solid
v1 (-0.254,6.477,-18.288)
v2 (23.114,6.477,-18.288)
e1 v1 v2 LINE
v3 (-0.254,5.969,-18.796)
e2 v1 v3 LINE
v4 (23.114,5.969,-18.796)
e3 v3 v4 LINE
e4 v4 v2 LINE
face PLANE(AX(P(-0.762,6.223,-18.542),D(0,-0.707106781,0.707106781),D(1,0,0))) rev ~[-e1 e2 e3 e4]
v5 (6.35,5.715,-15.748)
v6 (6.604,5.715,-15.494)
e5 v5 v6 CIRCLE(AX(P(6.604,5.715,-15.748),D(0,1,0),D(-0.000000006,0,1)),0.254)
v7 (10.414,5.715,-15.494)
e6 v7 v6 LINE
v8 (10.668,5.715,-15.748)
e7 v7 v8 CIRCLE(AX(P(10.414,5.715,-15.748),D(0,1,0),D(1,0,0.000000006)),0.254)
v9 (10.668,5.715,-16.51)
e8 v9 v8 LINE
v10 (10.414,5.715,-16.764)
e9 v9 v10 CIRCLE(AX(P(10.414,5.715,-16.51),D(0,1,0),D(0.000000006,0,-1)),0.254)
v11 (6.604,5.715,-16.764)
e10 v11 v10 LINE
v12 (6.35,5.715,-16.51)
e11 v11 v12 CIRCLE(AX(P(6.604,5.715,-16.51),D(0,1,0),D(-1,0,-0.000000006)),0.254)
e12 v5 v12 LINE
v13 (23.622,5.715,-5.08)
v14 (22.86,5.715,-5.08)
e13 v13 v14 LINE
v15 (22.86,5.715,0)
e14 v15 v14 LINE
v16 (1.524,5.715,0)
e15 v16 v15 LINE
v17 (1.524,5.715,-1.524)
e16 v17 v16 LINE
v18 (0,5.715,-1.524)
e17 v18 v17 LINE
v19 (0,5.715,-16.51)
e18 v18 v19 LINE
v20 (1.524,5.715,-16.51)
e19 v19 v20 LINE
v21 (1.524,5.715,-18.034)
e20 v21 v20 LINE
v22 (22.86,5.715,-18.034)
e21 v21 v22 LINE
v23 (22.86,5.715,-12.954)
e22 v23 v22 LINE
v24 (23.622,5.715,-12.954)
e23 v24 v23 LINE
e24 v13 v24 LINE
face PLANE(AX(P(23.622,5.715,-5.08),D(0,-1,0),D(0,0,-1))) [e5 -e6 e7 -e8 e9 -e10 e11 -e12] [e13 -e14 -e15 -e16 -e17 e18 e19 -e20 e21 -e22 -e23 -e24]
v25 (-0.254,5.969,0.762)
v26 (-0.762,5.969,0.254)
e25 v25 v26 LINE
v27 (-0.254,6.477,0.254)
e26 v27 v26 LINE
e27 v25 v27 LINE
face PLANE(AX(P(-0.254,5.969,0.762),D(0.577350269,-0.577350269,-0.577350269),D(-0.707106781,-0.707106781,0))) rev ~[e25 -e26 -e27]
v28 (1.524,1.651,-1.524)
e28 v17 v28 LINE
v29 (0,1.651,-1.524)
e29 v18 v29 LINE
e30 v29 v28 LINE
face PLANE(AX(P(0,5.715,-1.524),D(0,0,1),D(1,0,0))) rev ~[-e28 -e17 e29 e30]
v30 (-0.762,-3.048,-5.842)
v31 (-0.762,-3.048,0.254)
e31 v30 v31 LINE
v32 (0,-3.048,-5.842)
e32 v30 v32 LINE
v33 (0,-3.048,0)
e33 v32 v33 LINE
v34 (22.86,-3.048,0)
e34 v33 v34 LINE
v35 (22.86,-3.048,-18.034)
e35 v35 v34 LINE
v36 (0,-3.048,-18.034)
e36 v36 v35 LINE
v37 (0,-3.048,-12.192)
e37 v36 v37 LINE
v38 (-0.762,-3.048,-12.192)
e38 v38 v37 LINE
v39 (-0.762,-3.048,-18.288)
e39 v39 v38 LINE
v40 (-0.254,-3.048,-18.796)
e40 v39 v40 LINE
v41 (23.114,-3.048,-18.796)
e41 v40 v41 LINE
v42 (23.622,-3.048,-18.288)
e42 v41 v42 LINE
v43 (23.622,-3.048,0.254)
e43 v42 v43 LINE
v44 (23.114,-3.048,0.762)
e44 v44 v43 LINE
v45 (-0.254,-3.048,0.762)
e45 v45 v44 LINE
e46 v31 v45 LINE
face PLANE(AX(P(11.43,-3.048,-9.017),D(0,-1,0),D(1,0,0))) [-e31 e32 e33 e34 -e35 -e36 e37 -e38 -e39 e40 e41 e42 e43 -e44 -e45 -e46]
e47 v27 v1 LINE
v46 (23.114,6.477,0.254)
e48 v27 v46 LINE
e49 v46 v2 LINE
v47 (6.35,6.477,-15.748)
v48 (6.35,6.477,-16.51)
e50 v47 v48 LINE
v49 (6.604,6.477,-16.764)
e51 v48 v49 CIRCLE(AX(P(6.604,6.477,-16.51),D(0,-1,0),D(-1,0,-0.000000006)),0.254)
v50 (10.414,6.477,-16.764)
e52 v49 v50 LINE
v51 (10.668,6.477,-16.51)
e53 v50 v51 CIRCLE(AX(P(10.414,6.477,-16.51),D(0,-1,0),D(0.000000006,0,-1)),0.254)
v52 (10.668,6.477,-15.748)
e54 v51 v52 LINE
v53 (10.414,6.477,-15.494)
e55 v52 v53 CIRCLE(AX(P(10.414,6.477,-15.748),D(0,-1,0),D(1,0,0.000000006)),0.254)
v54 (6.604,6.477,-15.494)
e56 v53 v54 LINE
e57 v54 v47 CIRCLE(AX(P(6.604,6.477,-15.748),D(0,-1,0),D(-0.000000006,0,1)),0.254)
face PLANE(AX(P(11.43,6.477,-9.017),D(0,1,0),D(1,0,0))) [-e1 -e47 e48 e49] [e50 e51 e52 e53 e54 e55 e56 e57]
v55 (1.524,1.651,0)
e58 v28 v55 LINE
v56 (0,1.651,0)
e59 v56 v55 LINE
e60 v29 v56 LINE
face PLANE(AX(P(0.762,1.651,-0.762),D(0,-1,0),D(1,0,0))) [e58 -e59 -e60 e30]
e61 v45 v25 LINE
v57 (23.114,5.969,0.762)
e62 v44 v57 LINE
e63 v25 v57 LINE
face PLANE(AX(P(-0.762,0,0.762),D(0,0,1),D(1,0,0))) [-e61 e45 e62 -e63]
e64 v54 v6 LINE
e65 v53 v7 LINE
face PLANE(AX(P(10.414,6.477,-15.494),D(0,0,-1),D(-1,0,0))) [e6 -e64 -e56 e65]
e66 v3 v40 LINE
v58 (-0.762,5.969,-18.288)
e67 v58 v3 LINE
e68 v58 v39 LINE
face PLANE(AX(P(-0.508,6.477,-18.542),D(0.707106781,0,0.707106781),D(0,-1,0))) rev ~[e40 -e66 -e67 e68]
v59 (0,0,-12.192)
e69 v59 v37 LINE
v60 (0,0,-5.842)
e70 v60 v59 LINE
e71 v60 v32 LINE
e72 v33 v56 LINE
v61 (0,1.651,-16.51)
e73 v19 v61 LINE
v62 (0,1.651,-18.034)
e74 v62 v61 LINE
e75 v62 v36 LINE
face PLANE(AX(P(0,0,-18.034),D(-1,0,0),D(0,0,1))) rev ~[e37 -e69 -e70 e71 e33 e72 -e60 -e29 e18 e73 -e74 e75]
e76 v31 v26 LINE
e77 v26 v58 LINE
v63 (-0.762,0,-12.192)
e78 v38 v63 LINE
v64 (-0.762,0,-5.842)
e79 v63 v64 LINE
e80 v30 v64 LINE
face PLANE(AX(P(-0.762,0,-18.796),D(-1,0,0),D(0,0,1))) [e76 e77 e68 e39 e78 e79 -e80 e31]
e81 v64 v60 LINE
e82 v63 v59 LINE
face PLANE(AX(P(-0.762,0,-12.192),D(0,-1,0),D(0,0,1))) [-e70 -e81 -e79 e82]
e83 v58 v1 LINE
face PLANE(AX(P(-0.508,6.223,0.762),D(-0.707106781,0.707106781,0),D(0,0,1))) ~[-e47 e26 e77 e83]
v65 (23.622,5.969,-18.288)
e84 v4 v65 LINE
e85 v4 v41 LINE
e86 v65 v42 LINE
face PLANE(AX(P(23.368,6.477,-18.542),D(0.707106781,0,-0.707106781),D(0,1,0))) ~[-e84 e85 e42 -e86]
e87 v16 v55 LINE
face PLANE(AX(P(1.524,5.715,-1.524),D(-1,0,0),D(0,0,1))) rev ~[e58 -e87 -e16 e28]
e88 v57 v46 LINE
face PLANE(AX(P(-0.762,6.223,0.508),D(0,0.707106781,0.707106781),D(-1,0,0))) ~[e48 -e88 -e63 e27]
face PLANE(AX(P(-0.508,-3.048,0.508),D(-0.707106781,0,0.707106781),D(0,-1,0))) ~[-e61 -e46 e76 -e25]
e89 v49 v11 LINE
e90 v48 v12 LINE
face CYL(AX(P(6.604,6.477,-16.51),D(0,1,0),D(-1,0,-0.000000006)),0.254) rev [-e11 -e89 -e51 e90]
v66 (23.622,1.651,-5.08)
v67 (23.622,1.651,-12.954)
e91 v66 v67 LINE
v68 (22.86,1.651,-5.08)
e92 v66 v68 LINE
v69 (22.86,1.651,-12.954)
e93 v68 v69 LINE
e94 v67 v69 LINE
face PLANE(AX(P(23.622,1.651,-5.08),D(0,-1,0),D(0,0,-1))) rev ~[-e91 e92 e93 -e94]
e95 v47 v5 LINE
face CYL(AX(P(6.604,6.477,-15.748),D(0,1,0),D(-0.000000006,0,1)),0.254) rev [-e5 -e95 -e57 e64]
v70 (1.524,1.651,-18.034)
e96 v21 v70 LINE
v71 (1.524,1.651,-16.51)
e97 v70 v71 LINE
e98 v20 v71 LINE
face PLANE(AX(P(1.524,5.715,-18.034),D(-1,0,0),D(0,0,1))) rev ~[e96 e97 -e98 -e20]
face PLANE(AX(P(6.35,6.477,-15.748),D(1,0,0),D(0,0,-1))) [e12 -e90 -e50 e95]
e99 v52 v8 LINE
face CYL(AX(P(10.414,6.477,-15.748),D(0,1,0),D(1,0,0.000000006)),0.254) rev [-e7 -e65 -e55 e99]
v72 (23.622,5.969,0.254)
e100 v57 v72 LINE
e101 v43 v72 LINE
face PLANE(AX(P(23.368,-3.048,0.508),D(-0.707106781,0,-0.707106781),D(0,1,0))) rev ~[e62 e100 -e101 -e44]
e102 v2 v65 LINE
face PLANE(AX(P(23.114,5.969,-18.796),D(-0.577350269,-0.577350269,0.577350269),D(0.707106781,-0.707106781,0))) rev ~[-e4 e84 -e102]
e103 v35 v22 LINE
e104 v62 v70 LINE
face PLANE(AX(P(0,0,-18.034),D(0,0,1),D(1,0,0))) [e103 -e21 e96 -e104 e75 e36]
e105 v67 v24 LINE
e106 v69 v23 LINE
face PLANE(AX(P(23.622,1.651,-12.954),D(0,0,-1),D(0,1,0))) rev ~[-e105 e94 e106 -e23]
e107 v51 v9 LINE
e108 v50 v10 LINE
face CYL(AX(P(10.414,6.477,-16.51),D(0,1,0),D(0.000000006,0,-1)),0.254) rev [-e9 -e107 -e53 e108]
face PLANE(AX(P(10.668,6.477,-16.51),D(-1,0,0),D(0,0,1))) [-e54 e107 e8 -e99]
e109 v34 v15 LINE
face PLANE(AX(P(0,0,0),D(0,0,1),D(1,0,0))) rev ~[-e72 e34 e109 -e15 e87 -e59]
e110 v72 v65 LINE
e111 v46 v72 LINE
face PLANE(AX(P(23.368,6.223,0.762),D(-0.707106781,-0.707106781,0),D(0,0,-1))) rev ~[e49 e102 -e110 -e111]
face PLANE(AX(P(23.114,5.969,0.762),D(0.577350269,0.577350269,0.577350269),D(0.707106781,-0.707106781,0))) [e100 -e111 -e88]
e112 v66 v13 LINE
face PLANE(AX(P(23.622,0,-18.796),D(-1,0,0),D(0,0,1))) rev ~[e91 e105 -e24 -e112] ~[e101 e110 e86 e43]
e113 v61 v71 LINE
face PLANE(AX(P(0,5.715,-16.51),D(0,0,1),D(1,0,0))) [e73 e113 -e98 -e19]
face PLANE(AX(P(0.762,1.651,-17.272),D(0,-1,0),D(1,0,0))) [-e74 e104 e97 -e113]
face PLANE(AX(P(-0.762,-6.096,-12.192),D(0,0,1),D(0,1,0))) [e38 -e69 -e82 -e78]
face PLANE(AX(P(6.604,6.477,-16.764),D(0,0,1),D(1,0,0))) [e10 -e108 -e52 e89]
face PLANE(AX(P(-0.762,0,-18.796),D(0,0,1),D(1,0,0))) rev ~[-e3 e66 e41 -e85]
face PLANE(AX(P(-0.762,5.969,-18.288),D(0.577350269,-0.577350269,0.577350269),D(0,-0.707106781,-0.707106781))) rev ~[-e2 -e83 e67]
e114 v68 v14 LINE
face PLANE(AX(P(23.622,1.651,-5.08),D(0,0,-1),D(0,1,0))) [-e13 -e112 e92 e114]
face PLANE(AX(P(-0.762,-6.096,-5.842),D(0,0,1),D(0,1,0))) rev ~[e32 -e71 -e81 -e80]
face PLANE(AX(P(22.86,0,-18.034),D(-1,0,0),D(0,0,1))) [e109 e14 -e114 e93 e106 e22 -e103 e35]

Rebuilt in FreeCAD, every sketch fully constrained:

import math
import FreeCAD as App
import Part
import Sketcher

V = App.Vector
Q = App.Units.Quantity


def edges_at(feature, points):
    """Names of the edges that pass closest to the given points."""
    edges = feature.Shape.Edges
    near = lambda p: min(range(len(edges)), key=lambda i: edges[i].distToShape(Part.Vertex(*p))[0])
    return sorted({f"Edge{near(p) + 1}" for p in points})

doc = App.newDocument("Part")
body = doc.addObject("PartDesign::Body", "Body")

# Sketch on XZ plane
sketch1 = body.newObject("Sketcher::SketchObject", "Sketch")
sketch1.AttachmentSupport = (doc.getObject("XZ_Plane"), [""])
sketch1.MapMode = "FlatFace"
sketch1.addGeometry([
    Part.LineSegment(V(-0.762, -18.796, 0), V(-0.762, 0.762, 0)),
    Part.LineSegment(V(-0.762, 0.762, 0), V(23.622, 0.762, 0)),
    Part.LineSegment(V(23.622, 0.762, 0), V(23.622, -18.796, 0)),
    Part.LineSegment(V(23.622, -18.796, 0), V(-0.762, -18.796, 0)),
], False)
sketch1.addConstraint([
    Sketcher.Constraint("Coincident", 0, 2, 1, 1),
    Sketcher.Constraint("Coincident", 1, 2, 2, 1),
    Sketcher.Constraint("Coincident", 2, 2, 3, 1),
    Sketcher.Constraint("Coincident", 3, 2, 0, 1),
    Sketcher.Constraint("Vertical", 0),
    Sketcher.Constraint("Horizontal", 1),
    Sketcher.Constraint("Vertical", 2),
    Sketcher.Constraint("Horizontal", 3),
    Sketcher.Constraint("DistanceX", 1, 1, 1, 2, Q("0.96 in")),
    Sketcher.Constraint("DistanceY", 0, 1, 0, 2, Q("0.77 in")),
    Sketcher.Constraint("DistanceX", 0, 2, -1, 1, Q("0.03 in")),
    Sketcher.Constraint("DistanceY", -1, 1, 0, 2, Q("0.03 in")),
])
pad1 = body.newObject("PartDesign::Pad", "Pad")
pad1.Profile = sketch1
pad1.Length = Q("0.255 in")
pad1.Reversed = True

# Sketch on XZ plane
sketch2 = body.newObject("Sketcher::SketchObject", "Sketch001")
sketch2.AttachmentSupport = (doc.getObject("XZ_Plane"), [""])
sketch2.MapMode = "FlatFace"
sketch2.addGeometry([
    Part.LineSegment(V(0, -18.034, 0), V(0, 0, 0)),
    Part.LineSegment(V(0, 0, 0), V(22.86, 0, 0)),
    Part.LineSegment(V(22.86, 0, 0), V(22.86, -18.034, 0)),
    Part.LineSegment(V(22.86, -18.034, 0), V(0, -18.034, 0)),
], False)
sketch2.addConstraint([
    Sketcher.Constraint("Coincident", 0, 2, 1, 1),
    Sketcher.Constraint("Coincident", 1, 2, 2, 1),
    Sketcher.Constraint("Coincident", 2, 2, 3, 1),
    Sketcher.Constraint("Coincident", 3, 2, 0, 1),
    Sketcher.Constraint("Vertical", 0),
    Sketcher.Constraint("Horizontal", 1),
    Sketcher.Constraint("Vertical", 2),
    Sketcher.Constraint("Horizontal", 3),
    Sketcher.Constraint("Coincident", 0, 2, -1, 1),
    Sketcher.Constraint("DistanceX", 1, 1, 1, 2, Q("0.9 in")),
    Sketcher.Constraint("DistanceY", 0, 1, 0, 2, Q("0.71 in")),
])
pocket1 = body.newObject("PartDesign::Pocket", "Pocket")
pocket1.Profile = sketch2
pocket1.Length = Q("0.225 in")

# Sketch on XZ plane
sketch3 = body.newObject("Sketcher::SketchObject", "Sketch002")
sketch3.AttachmentSupport = (doc.getObject("XZ_Plane"), [""])
sketch3.MapMode = "FlatFace"
sketch3.addGeometry([
    Part.LineSegment(V(-0.762, 0.762, 0), V(-0.762, -18.796, 0)),  # 0
    Part.LineSegment(V(-0.762, -18.796, 0), V(23.622, -18.796, 0)),  # 1
    Part.LineSegment(V(23.622, -18.796, 0), V(23.622, 0.762, 0)),  # 2
    Part.LineSegment(V(23.622, 0.762, 0), V(-0.762, 0.762, 0)),  # 3
    Part.LineSegment(V(22.86, -18.034, 0), V(0, -18.034, 0)),  # 4
    Part.LineSegment(V(0, -18.034, 0), V(0, 0, 0)),  # 5
    Part.LineSegment(V(0, 0, 0), V(22.86, 0, 0)),  # 6
    Part.LineSegment(V(22.86, 0, 0), V(22.86, -18.034, 0)),  # 7
], False)
sketch3.addConstraint([
    Sketcher.Constraint("Coincident", 0, 2, 1, 1),
    Sketcher.Constraint("Coincident", 1, 2, 2, 1),
    Sketcher.Constraint("Coincident", 2, 2, 3, 1),
    Sketcher.Constraint("Coincident", 3, 2, 0, 1),
    Sketcher.Constraint("Coincident", 4, 2, 5, 1),
    Sketcher.Constraint("Coincident", 5, 2, 6, 1),
    Sketcher.Constraint("Coincident", 6, 2, 7, 1),
    Sketcher.Constraint("Coincident", 7, 2, 4, 1),
    Sketcher.Constraint("Vertical", 0),
    Sketcher.Constraint("Horizontal", 1),
    Sketcher.Constraint("Vertical", 2),
    Sketcher.Constraint("Horizontal", 3),
    Sketcher.Constraint("Horizontal", 4),
    Sketcher.Constraint("Vertical", 5),
    Sketcher.Constraint("Horizontal", 6),
    Sketcher.Constraint("Vertical", 7),
    Sketcher.Constraint("Coincident", 5, 2, -1, 1),
    Sketcher.Constraint("DistanceX", 4, 2, 4, 1, Q("0.9 in")),
    Sketcher.Constraint("DistanceX", 1, 1, 1, 2, Q("0.96 in")),
    Sketcher.Constraint("DistanceY", 0, 2, 0, 1, Q("0.77 in")),
    Sketcher.Constraint("DistanceY", 5, 1, 5, 2, Q("0.71 in")),
    Sketcher.Constraint("DistanceX", 0, 2, -1, 1, Q("0.03 in")),
    Sketcher.Constraint("DistanceY", 0, 2, -1, 1, Q("0.74 in")),
])
pad2 = body.newObject("PartDesign::Pad", "Pad001")
pad2.Profile = sketch3
pad2.Length = Q("0.12 in")

# Sketch on YZ plane
sketch4 = body.newObject("Sketcher::SketchObject", "Sketch003")
sketch4.AttachmentSupport = (doc.getObject("YZ_Plane"), [""])
sketch4.MapMode = "FlatFace"
sketch4.AttachmentOffset = App.Placement(V(0, 0, -0.03 * 25.4), App.Rotation())
sketch4.addGeometry([
    Part.LineSegment(V(0, -12.192, 0), V(-6.096, -12.192, 0)),
    Part.LineSegment(V(-6.096, -12.192, 0), V(-6.096, -5.842, 0)),
    Part.LineSegment(V(-6.096, -5.842, 0), V(0, -5.842, 0)),
    Part.LineSegment(V(0, -5.842, 0), V(0, -12.192, 0)),
], False)
sketch4.addConstraint([
    Sketcher.Constraint("Coincident", 0, 2, 1, 1),
    Sketcher.Constraint("Coincident", 1, 2, 2, 1),
    Sketcher.Constraint("Coincident", 2, 2, 3, 1),
    Sketcher.Constraint("Coincident", 3, 2, 0, 1),
    Sketcher.Constraint("Horizontal", 0),
    Sketcher.Constraint("Vertical", 1),
    Sketcher.Constraint("Horizontal", 2),
    Sketcher.Constraint("Vertical", 3),
    Sketcher.Constraint("PointOnObject", 2, 2, -2),
    Sketcher.Constraint("DistanceX", 0, 2, 0, 1, Q("0.24 in")),
    Sketcher.Constraint("DistanceY", 1, 1, 1, 2, Q("0.25 in")),
    Sketcher.Constraint("DistanceY", 0, 2, -1, 1, Q("0.48 in")),
])
pocket2 = body.newObject("PartDesign::Pocket", "Pocket001")
pocket2.Profile = sketch4
pocket2.Type = "UpToFirst"
pocket2.Reversed = True

# Sketch on YZ plane
sketch5 = body.newObject("Sketcher::SketchObject", "Sketch004")
sketch5.AttachmentSupport = (doc.getObject("YZ_Plane"), [""])
sketch5.MapMode = "FlatFace"
sketch5.AttachmentOffset = App.Placement(V(0, 0, 0.93 * 25.4), App.Rotation())
sketch5.addGeometry([
    Part.LineSegment(V(5.715, -5.08, 0), V(1.651, -5.08, 0)),
    Part.LineSegment(V(1.651, -5.08, 0), V(1.651, -12.954, 0)),
    Part.LineSegment(V(1.651, -12.954, 0), V(5.715, -12.954, 0)),
    Part.LineSegment(V(5.715, -12.954, 0), V(5.715, -5.08, 0)),
], False)
sketch5.addConstraint([
    Sketcher.Constraint("Coincident", 0, 2, 1, 1),
    Sketcher.Constraint("Coincident", 1, 2, 2, 1),
    Sketcher.Constraint("Coincident", 2, 2, 3, 1),
    Sketcher.Constraint("Coincident", 3, 2, 0, 1),
    Sketcher.Constraint("Horizontal", 0),
    Sketcher.Constraint("Vertical", 1),
    Sketcher.Constraint("Horizontal", 2),
    Sketcher.Constraint("Vertical", 3),
    Sketcher.Constraint("DistanceX", 0, 2, 0, 1, Q("0.16 in")),
    Sketcher.Constraint("DistanceY", 1, 2, 1, 1, Q("0.31 in")),
    Sketcher.Constraint("DistanceY", 0, 2, -1, 1, Q("0.2 in")),
    Sketcher.Constraint("DistanceX", -1, 1, 0, 2, Q("0.065 in")),
])
pocket3 = body.newObject("PartDesign::Pocket", "Pocket002")
pocket3.Profile = sketch5
pocket3.Type = "UpToFirst"
doc.recompute()

chamfer = body.newObject("PartDesign::Chamfer", "Chamfer")
chamfer.Base = (pocket3, edges_at(pocket3, [
    (23.622, 6.477, -9.017),
    (11.43, 6.477, -18.796),
    (-0.762, 6.477, -9.017),
    (11.43, 6.477, 0.762),
    (-0.762, 1.714, -18.796),
    (23.622, 1.714, -18.796),
    (23.622, 1.714, 0.762),
    (-0.762, 1.714, 0.762),
]))
chamfer.Size = Q("0.02 in")

# Sketch on XZ plane
sketch6 = body.newObject("Sketcher::SketchObject", "Sketch005")
sketch6.AttachmentSupport = (doc.getObject("XZ_Plane"), [""])
sketch6.MapMode = "FlatFace"
sketch6.AttachmentOffset = App.Placement(V(0, 0, -0.255 * 25.4), App.Rotation())
sketch6.addGeometry([
    Part.LineSegment(V(10.414, -16.764, 0), V(6.604, -16.764, 0)),  # 0
    Part.ArcOfCircle(Part.Circle(V(6.604, -16.51, 0), V(0, 0, 1), 0.254), math.radians(-180), math.radians(-90)),  # 1
    Part.LineSegment(V(6.35, -16.51, 0), V(6.35, -15.748, 0)),  # 2
    Part.ArcOfCircle(Part.Circle(V(6.604, -15.748, 0), V(0, 0, 1), 0.254), math.radians(90), math.radians(180)),  # 3
    Part.LineSegment(V(6.604, -15.494, 0), V(10.414, -15.494, 0)),  # 4
    Part.ArcOfCircle(Part.Circle(V(10.414, -15.748, 0), V(0, 0, 1), 0.254), math.radians(0), math.radians(90)),  # 5
    Part.LineSegment(V(10.668, -15.748, 0), V(10.668, -16.51, 0)),  # 6
    Part.ArcOfCircle(Part.Circle(V(10.414, -16.51, 0), V(0, 0, 1), 0.254), math.radians(-90), math.radians(0)),  # 7
], False)
sketch6.addConstraint([
    Sketcher.Constraint("Tangent", 0, 2, 1, 2),
    Sketcher.Constraint("Tangent", 1, 1, 2, 1),
    Sketcher.Constraint("Tangent", 2, 2, 3, 2),
    Sketcher.Constraint("Tangent", 3, 1, 4, 1),
    Sketcher.Constraint("Tangent", 4, 2, 5, 2),
    Sketcher.Constraint("Tangent", 5, 1, 6, 1),
    Sketcher.Constraint("Tangent", 6, 2, 7, 2),
    Sketcher.Constraint("Tangent", 7, 1, 0, 1),
    Sketcher.Constraint("Horizontal", 0),
    Sketcher.Constraint("Vertical", 2),
    Sketcher.Constraint("Horizontal", 4),
    Sketcher.Constraint("Vertical", 6),
    Sketcher.Constraint("Equal", 1, 3),
    Sketcher.Constraint("Equal", 3, 5),
    Sketcher.Constraint("Equal", 5, 7),
    Sketcher.Constraint("Radius", 1, Q("0.01 in")),
    Sketcher.Constraint("DistanceX", 0, 2, 0, 1, Q("0.15 in")),
    Sketcher.Constraint("DistanceY", 2, 1, 2, 2, Q("0.03 in")),
    Sketcher.Constraint("DistanceX", -1, 1, 1, 3, Q("0.26 in")),
    Sketcher.Constraint("DistanceY", 1, 3, -1, 1, Q("0.65 in")),
])
pocket4 = body.newObject("PartDesign::Pocket", "Pocket003")
pocket4.Profile = sketch6
pocket4.Type = "UpToFirst"
pocket4.Reversed = True

# Sketch on XZ plane
sketch7 = body.newObject("Sketcher::SketchObject", "Sketch006")
sketch7.AttachmentSupport = (doc.getObject("XZ_Plane"), [""])
sketch7.MapMode = "FlatFace"
sketch7.AttachmentOffset = App.Placement(V(0, 0, -0.225 * 25.4), App.Rotation())
sketch7.addGeometry([
    Part.LineSegment(V(0, -16.51, 0), V(0, -18.034, 0)),  # 0
    Part.LineSegment(V(0, -18.034, 0), V(1.524, -18.034, 0)),  # 1
    Part.LineSegment(V(1.524, -18.034, 0), V(1.524, -16.51, 0)),  # 2
    Part.LineSegment(V(1.524, -16.51, 0), V(0, -16.51, 0)),  # 3
    Part.LineSegment(V(0, 0, 0), V(0, -1.524, 0)),  # 4
    Part.LineSegment(V(0, -1.524, 0), V(1.524, -1.524, 0)),  # 5
    Part.LineSegment(V(1.524, -1.524, 0), V(1.524, 0, 0)),  # 6
    Part.LineSegment(V(1.524, 0, 0), V(0, 0, 0)),  # 7
], False)
sketch7.addConstraint([
    Sketcher.Constraint("Coincident", 0, 2, 1, 1),
    Sketcher.Constraint("Coincident", 1, 2, 2, 1),
    Sketcher.Constraint("Coincident", 2, 2, 3, 1),
    Sketcher.Constraint("Coincident", 3, 2, 0, 1),
    Sketcher.Constraint("Coincident", 4, 2, 5, 1),
    Sketcher.Constraint("Coincident", 5, 2, 6, 1),
    Sketcher.Constraint("Coincident", 6, 2, 7, 1),
    Sketcher.Constraint("Coincident", 7, 2, 4, 1),
    Sketcher.Constraint("Vertical", 0),
    Sketcher.Constraint("Horizontal", 1),
    Sketcher.Constraint("Vertical", 2),
    Sketcher.Constraint("Horizontal", 3),
    Sketcher.Constraint("Vertical", 4),
    Sketcher.Constraint("Horizontal", 5),
    Sketcher.Constraint("Vertical", 6),
    Sketcher.Constraint("Horizontal", 7),
    Sketcher.Constraint("Coincident", 7, 2, -1, 1),
    Sketcher.Constraint("PointOnObject", 0, 2, -2),
    Sketcher.Constraint("Vertical", 2, 2, 5, 2),
    Sketcher.Constraint("Equal", 7, 0),
    Sketcher.Constraint("Equal", 2, 4),
    Sketcher.Constraint("DistanceX", 1, 1, 1, 2, Q("0.06 in")),
    Sketcher.Constraint("DistanceY", 0, 2, -1, 1, Q("0.71 in")),
])
pad3 = body.newObject("PartDesign::Pad", "Pad002")
pad3.Profile = sketch7
pad3.Length = Q("0.16 in")

doc.recompute()
